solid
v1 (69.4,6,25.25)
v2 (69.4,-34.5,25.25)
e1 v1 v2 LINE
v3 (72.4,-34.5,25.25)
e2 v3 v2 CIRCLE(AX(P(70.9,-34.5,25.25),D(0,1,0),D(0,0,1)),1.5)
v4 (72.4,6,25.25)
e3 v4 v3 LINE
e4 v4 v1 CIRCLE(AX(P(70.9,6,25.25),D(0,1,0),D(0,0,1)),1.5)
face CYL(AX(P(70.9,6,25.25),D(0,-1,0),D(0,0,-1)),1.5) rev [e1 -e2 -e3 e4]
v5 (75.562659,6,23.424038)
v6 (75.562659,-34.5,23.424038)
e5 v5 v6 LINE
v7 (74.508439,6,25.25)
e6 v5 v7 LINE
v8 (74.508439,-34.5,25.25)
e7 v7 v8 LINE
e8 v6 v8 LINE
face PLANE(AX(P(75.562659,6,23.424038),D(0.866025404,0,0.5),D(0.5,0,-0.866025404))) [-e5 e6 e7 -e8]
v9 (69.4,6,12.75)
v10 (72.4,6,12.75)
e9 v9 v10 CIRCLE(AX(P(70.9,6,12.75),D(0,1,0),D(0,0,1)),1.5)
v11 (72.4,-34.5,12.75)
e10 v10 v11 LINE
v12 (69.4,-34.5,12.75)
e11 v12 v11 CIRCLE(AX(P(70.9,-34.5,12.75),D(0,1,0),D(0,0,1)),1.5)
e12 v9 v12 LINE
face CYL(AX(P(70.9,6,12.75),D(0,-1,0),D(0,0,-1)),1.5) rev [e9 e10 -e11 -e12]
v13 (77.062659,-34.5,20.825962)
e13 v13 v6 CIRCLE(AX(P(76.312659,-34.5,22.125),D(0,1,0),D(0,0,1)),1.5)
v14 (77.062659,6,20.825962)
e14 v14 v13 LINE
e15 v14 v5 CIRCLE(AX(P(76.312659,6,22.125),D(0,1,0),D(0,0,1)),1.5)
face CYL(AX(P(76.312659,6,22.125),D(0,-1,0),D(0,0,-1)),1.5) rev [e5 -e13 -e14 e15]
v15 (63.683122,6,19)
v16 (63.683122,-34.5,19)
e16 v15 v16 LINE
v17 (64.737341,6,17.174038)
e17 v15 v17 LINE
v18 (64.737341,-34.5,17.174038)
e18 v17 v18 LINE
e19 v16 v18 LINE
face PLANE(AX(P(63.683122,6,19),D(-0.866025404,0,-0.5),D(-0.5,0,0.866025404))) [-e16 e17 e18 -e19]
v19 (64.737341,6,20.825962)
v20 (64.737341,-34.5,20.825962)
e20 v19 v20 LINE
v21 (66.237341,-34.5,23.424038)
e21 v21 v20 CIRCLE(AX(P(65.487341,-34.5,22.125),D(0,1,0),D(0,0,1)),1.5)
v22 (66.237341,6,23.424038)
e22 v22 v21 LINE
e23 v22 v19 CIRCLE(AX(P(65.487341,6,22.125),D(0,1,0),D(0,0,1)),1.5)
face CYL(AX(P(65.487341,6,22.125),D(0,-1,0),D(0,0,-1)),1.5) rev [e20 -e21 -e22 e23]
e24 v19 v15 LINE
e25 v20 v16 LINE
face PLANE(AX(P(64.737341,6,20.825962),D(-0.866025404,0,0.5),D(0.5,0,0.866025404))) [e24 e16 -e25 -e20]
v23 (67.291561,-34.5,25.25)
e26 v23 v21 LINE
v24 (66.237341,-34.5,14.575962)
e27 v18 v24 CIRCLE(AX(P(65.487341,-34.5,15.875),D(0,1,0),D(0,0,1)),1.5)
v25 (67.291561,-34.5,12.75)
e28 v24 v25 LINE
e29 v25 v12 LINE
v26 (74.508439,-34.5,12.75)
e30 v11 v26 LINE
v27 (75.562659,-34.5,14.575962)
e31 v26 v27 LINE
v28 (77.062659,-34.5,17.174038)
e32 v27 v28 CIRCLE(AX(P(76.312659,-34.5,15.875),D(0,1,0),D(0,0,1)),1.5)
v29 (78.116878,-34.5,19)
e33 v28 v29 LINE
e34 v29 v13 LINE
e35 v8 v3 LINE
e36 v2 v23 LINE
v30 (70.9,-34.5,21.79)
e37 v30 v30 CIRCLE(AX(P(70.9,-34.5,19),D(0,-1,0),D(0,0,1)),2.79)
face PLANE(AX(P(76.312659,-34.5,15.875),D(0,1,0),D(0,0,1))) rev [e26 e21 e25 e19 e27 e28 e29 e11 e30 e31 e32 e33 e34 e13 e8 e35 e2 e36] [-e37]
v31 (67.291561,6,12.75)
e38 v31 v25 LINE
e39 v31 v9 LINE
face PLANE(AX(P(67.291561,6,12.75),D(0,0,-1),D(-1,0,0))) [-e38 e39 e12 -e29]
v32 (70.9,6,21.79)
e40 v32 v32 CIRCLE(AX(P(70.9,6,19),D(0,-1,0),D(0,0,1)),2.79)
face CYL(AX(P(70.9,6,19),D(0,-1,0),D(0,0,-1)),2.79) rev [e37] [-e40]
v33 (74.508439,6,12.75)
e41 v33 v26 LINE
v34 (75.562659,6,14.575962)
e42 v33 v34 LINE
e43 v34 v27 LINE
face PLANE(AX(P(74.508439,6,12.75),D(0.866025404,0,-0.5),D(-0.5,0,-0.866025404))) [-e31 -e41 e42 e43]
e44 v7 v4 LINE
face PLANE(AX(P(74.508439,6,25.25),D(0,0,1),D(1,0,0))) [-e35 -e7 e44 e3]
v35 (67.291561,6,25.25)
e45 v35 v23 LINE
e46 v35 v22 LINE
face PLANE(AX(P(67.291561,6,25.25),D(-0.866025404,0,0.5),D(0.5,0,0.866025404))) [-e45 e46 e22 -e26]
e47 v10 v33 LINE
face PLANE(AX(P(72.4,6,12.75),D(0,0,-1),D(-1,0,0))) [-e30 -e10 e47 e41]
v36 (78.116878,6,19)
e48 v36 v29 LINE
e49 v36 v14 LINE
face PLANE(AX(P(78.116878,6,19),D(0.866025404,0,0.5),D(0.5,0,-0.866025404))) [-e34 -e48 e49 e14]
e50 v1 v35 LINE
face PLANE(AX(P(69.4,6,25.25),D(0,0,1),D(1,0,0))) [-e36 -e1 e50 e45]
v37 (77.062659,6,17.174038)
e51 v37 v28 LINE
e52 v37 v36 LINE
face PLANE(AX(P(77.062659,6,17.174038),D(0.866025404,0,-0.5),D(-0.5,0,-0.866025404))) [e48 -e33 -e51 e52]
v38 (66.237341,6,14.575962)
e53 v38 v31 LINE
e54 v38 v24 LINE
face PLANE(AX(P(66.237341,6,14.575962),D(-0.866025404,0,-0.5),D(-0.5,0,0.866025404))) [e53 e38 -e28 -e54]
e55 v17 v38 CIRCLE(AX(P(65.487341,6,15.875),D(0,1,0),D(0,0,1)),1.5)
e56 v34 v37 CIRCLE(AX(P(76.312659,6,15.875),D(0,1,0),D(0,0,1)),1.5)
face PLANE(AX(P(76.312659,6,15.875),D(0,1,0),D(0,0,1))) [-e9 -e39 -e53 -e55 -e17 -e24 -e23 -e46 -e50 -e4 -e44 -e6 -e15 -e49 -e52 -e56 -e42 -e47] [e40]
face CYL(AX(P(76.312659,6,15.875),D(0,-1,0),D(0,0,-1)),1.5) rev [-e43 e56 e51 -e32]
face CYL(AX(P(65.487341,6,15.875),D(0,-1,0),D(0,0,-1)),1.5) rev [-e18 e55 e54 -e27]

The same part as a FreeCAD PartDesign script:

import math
import FreeCAD as App
import Part
import Sketcher
from FreeCAD import Vector
Q = App.Units.Quantity

doc = App.newDocument("Part")
body = doc.addObject("PartDesign::Body", "Body")

# Sketch on XZ plane
sketch1 = doc.addObject("Sketcher::SketchObject", "Sketch")
body.addObject(sketch1)
sketch1.AttachmentSupport = (doc.XZ_Plane, [""])
sketch1.MapMode = "FlatFace"
sketch1.AttachmentOffset = App.Placement(Vector(0, 0, 34.5), App.Rotation())
sketch1.addGeometry([
    Part.LineSegment(Vector(77.1, 17.2, 0), Vector(78.1, 19, 0)),  # 0
    Part.LineSegment(Vector(78.1, 19, 0), Vector(77.1, 20.8, 0)),  # 1
    Part.ArcOfCircle(Part.Circle(Vector(76.3, 22.1, 0), Vector(0, 0, 1), 1.5), math.radians(120), math.radians(300)),  # 2
    Part.LineSegment(Vector(75.6, 23.4, 0), Vector(74.5, 25.2, 0)),  # 3
    Part.LineSegment(Vector(74.5, 25.2, 0), Vector(72.4, 25.2, 0)),  # 4
    Part.ArcOfCircle(Part.Circle(Vector(70.9, 25.2, 0), Vector(0, 0, 1), 1.5), math.radians(180), math.radians(360)),  # 5
    Part.LineSegment(Vector(69.4, 25.2, 0), Vector(67.3, 25.2, 0)),  # 6
    Part.LineSegment(Vector(67.3, 25.2, 0), Vector(66.2, 23.4, 0)),  # 7
    Part.ArcOfCircle(Part.Circle(Vector(65.5, 22.1, 0), Vector(0, 0, 1), 1.5), math.radians(-120), math.radians(60)),  # 8
    Part.LineSegment(Vector(64.7, 20.8, 0), Vector(63.7, 19, 0)),  # 9
    Part.LineSegment(Vector(63.7, 19, 0), Vector(64.7, 17.2, 0)),  # 10
    Part.ArcOfCircle(Part.Circle(Vector(65.5, 15.9, 0), Vector(0, 0, 1), 1.5), math.radians(-60), math.radians(120)),  # 11
    Part.LineSegment(Vector(66.2, 14.6, 0), Vector(67.3, 12.8, 0)),  # 12
    Part.LineSegment(Vector(67.3, 12.8, 0), Vector(69.4, 12.8, 0)),  # 13
    Part.ArcOfCircle(Part.Circle(Vector(70.9, 12.8, 0), Vector(0, 0, 1), 1.5), math.radians(0), math.radians(180)),  # 14
    Part.LineSegment(Vector(72.4, 12.8, 0), Vector(74.5, 12.8, 0)),  # 15
    Part.LineSegment(Vector(74.5, 12.8, 0), Vector(75.6, 14.6, 0)),  # 16
    Part.ArcOfCircle(Part.Circle(Vector(76.3, 15.9, 0), Vector(0, 0, 1), 1.5), math.radians(60), math.radians(240)),  # 17
    Part.Circle(Vector(70.9, 19, 0), Vector(0, 0, 1), 2.8),  # 18
], False)
sketch1.addConstraint([
    Sketcher.Constraint("Coincident", 0, 2, 1, 1),
    Sketcher.Constraint("Coincident", 1, 2, 2, 2),
    Sketcher.Constraint("Coincident", 2, 1, 3, 1),
    Sketcher.Constraint("Coincident", 3, 2, 4, 1),
    Sketcher.Constraint("Coincident", 4, 2, 5, 2),
    Sketcher.Constraint("Coincident", 5, 1, 6, 1),
    Sketcher.Constraint("Coincident", 6, 2, 7, 1),
    Sketcher.Constraint("Coincident", 7, 2, 8, 2),
    Sketcher.Constraint("Coincident", 8, 1, 9, 1),
    Sketcher.Constraint("Coincident", 9, 2, 10, 1),
    Sketcher.Constraint("Coincident", 10, 2, 11, 2),
    Sketcher.Constraint("Coincident", 11, 1, 12, 1),
    Sketcher.Constraint("Coincident", 12, 2, 13, 1),
    Sketcher.Constraint("Coincident", 13, 2, 14, 2),
    Sketcher.Constraint("Coincident", 14, 1, 15, 1),
    Sketcher.Constraint("Coincident", 15, 2, 16, 1),
    Sketcher.Constraint("Coincident", 16, 2, 17, 2),
    Sketcher.Constraint("Coincident", 17, 1, 0, 1),
    Sketcher.Constraint("Horizontal", 4),
    Sketcher.Constraint("Horizontal", 6),
    Sketcher.Constraint("Horizontal", 13),
    Sketcher.Constraint("Horizontal", 15),
    Sketcher.Constraint("Equal", 2, 5),
    Sketcher.Constraint("Equal", 5, 8),
    Sketcher.Constraint("Equal", 8, 11),
    Sketcher.Constraint("Equal", 11, 14),
    Sketcher.Constraint("Equal", 14, 17),
    Sketcher.Constraint("Parallel", 1, 3),
    Sketcher.Constraint("Parallel", 0, 7),
    Sketcher.Constraint("Parallel", 7, 9),
    Sketcher.Constraint("Parallel", 3, 10),
    Sketcher.Constraint("Parallel", 10, 12),
    Sketcher.Constraint("Parallel", 9, 16),
    Sketcher.Constraint("Horizontal", 2, 3, 8, 3),
    Sketcher.Constraint("Horizontal", 11, 3, 17, 3),
    Sketcher.Constraint("Horizontal", 18, 3, 0, 2),
    Sketcher.Constraint("Horizontal", 5, 3, 3, 2),
    Sketcher.Constraint("Horizontal", 4, 2, 5, 1),
    Sketcher.Constraint("Horizontal", 2, 1, 7, 2),
    Sketcher.Constraint("Horizontal", 1, 2, 8, 1),
    Sketcher.Constraint("Horizontal", 0, 2, 9, 2),
    Sketcher.Constraint("Horizontal", 14, 3, 12, 2),
    Sketcher.Constraint("Horizontal", 13, 2, 14, 1),
    Sketcher.Constraint("Horizontal", 11, 1, 16, 2),
    Sketcher.Constraint("Horizontal", 10, 2, 17, 1),
    Sketcher.Constraint("Vertical", 8, 3, 11, 3),
    Sketcher.Constraint("Vertical", 5, 3, 14, 3),
    Sketcher.Constraint("Vertical", 2, 3, 17, 3),
    Sketcher.Constraint("Vertical", 14, 3, 18, 3),
    Sketcher.Constraint("Vertical", 8, 1, 10, 2),
    Sketcher.Constraint("Vertical", 7, 2, 11, 1),
    Sketcher.Constraint("Vertical", 6, 2, 12, 2),
    Sketcher.Constraint("Equal", 4, 6),
    Sketcher.Constraint("Equal", 1, 3),
    Sketcher.Constraint("Radius", 2, 1.5),
    Sketcher.Constraint("Diameter", 18, 5.58),
    Sketcher.Constraint("Angle", 0, Q("60 deg")),
    Sketcher.Constraint("DistanceY", -1, 1, 18, 3, 19.0),
    Sketcher.Constraint("DistanceX", -1, 1, 5, 3, 70.9),
    Sketcher.Constraint("DistanceY", 14, 3, 5, 3, 12.5),
    Sketcher.Constraint("DistanceX", 2, 1, 1, 2, 1.5),
    Sketcher.Constraint("DistanceY", 11, 3, 8, 3, 6.25),
    Sketcher.Constraint("DistanceX", 4, 2, 4, 1, 2.108439),
])
pad1 = doc.addObject("PartDesign::Pad", "Pad")
body.addObject(pad1)
pad1.Profile = sketch1
pad1.Length = 40.5
pad1.Reversed = True

doc.recompute()
